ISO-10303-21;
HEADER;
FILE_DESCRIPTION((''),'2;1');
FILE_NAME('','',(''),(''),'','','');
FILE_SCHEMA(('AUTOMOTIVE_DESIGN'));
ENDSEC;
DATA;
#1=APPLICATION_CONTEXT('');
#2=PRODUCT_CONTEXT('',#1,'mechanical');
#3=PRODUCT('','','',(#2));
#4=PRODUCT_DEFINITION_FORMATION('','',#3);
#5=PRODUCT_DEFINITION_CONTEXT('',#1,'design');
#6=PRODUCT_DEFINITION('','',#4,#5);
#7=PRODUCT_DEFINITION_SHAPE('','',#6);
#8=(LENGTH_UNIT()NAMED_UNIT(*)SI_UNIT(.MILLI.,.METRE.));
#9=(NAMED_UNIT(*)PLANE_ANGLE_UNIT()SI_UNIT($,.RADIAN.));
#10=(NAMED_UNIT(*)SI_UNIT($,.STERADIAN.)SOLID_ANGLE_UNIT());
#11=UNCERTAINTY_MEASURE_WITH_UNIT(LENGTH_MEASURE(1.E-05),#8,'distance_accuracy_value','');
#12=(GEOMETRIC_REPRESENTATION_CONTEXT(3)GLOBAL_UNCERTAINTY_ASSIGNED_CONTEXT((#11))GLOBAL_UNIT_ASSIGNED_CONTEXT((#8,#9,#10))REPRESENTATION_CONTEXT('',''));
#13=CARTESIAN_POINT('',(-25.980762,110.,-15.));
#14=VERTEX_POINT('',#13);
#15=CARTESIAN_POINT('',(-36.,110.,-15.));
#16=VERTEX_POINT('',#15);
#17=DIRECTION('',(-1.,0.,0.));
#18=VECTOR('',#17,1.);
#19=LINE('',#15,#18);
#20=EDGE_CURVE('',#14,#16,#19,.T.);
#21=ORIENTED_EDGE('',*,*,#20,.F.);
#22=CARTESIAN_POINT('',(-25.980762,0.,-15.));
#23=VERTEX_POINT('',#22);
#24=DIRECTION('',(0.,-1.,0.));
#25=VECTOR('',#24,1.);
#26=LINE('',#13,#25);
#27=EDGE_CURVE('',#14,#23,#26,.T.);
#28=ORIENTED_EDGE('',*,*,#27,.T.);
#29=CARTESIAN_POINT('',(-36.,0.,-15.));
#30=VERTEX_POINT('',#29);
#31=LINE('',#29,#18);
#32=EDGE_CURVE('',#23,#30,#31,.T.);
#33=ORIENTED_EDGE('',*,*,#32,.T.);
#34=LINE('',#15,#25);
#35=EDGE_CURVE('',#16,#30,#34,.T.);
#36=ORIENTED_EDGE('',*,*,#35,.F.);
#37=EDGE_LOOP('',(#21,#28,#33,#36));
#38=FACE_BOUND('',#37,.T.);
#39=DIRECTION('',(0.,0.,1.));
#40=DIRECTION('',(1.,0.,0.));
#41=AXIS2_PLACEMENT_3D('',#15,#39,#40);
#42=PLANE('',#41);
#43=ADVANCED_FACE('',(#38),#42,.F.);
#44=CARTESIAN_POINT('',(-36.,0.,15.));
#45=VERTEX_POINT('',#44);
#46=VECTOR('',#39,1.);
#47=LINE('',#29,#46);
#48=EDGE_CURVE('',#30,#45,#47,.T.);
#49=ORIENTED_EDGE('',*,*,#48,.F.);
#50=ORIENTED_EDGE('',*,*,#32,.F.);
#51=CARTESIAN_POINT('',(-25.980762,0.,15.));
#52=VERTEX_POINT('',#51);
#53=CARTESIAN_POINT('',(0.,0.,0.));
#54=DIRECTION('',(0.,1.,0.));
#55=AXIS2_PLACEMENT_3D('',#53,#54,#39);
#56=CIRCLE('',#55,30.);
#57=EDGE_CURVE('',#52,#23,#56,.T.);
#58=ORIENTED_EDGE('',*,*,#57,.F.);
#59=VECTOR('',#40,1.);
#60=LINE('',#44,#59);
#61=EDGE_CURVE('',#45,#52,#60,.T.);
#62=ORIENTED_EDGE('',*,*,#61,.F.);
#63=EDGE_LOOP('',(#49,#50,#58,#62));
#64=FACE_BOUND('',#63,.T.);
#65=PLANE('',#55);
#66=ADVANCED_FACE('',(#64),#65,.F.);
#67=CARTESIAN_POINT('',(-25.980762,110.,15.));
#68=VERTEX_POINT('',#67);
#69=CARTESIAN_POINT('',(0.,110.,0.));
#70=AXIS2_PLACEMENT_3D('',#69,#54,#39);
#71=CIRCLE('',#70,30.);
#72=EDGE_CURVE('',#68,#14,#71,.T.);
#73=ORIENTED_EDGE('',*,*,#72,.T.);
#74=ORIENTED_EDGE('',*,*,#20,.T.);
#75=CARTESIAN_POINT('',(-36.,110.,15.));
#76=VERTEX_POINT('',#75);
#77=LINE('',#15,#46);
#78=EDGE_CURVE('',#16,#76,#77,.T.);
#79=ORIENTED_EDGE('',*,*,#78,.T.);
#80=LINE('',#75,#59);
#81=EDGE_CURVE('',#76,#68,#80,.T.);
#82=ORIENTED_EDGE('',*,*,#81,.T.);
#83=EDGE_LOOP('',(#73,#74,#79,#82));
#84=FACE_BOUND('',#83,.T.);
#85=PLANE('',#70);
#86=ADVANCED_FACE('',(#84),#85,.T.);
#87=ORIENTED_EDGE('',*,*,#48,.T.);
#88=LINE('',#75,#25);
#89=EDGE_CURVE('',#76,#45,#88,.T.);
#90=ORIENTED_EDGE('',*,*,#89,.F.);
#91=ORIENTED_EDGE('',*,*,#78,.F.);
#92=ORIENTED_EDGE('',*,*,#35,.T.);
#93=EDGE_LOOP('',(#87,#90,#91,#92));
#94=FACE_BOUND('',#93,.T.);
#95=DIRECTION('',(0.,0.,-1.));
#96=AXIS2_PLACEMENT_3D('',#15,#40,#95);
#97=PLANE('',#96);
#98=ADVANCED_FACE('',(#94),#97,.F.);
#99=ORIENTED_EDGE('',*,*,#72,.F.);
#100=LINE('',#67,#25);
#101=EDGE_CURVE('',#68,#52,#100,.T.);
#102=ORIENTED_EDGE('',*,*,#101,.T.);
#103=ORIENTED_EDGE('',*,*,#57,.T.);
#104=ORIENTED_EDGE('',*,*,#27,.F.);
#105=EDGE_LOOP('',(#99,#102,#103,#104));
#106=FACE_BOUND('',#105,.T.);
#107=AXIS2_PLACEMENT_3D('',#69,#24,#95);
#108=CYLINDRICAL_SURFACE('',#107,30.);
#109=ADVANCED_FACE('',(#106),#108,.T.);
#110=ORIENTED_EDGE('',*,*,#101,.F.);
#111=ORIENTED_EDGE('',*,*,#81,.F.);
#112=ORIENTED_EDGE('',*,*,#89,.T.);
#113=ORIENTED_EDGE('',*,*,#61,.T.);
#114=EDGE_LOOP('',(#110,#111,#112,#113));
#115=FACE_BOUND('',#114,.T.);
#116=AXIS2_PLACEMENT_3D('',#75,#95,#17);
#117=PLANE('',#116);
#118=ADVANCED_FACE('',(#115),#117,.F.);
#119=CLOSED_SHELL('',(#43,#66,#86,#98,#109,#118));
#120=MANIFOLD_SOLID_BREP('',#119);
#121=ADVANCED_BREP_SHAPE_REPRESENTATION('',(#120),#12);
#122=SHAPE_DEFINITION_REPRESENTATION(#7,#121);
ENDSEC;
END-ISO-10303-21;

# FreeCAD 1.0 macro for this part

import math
import FreeCAD as App
import Part
import Sketcher

V = App.Vector

doc = App.newDocument("Part")
body = doc.addObject("PartDesign::Body", "Body")

sketch1 = body.newObject("Sketcher::SketchObject", "Sketch")
sketch1.AttachmentSupport = (doc.getObject("XZ_Plane"), [""])
sketch1.MapMode = "FlatFace"
sketch1.addGeometry([
    Part.LineSegment(V(-36, -15, 0), V(-36, 15, 0)),
    Part.LineSegment(V(-36, 15, 0), V(-26, 15, 0)),
    Part.ArcOfCircle(Part.Circle(V(0, 0, 0), V(0, 0, 1), 30), math.radians(-150), math.radians(150)),
    Part.LineSegment(V(-26, -15, 0), V(-36, -15, 0)),
], False)
sketch1.addConstraint([
    Sketcher.Constraint("Coincident", 0, 2, 1, 1),
    Sketcher.Constraint("Coincident", 1, 2, 2, 2),
    Sketcher.Constraint("Coincident", 2, 1, 3, 1),
    Sketcher.Constraint("Coincident", 3, 2, 0, 1),
    Sketcher.Constraint("Vertical", 0),
    Sketcher.Constraint("Horizontal", 1),
    Sketcher.Constraint("Horizontal", 3),
    Sketcher.Constraint("Coincident", 2, 3, -1, 1),
    Sketcher.Constraint("Vertical", 1, 2, 2, 1),
    Sketcher.Constraint("Radius", 2, 30.0),
    Sketcher.Constraint("DistanceY", 0, 1, 0, 2, 30.0),
    Sketcher.Constraint("DistanceX", 0, 2, -1, 1, 36.0),
])
pad1 = body.newObject("PartDesign::Pad", "Pad")
pad1.Profile = sketch1
pad1.Length = 110
pad1.Reversed = True

doc.recompute()
